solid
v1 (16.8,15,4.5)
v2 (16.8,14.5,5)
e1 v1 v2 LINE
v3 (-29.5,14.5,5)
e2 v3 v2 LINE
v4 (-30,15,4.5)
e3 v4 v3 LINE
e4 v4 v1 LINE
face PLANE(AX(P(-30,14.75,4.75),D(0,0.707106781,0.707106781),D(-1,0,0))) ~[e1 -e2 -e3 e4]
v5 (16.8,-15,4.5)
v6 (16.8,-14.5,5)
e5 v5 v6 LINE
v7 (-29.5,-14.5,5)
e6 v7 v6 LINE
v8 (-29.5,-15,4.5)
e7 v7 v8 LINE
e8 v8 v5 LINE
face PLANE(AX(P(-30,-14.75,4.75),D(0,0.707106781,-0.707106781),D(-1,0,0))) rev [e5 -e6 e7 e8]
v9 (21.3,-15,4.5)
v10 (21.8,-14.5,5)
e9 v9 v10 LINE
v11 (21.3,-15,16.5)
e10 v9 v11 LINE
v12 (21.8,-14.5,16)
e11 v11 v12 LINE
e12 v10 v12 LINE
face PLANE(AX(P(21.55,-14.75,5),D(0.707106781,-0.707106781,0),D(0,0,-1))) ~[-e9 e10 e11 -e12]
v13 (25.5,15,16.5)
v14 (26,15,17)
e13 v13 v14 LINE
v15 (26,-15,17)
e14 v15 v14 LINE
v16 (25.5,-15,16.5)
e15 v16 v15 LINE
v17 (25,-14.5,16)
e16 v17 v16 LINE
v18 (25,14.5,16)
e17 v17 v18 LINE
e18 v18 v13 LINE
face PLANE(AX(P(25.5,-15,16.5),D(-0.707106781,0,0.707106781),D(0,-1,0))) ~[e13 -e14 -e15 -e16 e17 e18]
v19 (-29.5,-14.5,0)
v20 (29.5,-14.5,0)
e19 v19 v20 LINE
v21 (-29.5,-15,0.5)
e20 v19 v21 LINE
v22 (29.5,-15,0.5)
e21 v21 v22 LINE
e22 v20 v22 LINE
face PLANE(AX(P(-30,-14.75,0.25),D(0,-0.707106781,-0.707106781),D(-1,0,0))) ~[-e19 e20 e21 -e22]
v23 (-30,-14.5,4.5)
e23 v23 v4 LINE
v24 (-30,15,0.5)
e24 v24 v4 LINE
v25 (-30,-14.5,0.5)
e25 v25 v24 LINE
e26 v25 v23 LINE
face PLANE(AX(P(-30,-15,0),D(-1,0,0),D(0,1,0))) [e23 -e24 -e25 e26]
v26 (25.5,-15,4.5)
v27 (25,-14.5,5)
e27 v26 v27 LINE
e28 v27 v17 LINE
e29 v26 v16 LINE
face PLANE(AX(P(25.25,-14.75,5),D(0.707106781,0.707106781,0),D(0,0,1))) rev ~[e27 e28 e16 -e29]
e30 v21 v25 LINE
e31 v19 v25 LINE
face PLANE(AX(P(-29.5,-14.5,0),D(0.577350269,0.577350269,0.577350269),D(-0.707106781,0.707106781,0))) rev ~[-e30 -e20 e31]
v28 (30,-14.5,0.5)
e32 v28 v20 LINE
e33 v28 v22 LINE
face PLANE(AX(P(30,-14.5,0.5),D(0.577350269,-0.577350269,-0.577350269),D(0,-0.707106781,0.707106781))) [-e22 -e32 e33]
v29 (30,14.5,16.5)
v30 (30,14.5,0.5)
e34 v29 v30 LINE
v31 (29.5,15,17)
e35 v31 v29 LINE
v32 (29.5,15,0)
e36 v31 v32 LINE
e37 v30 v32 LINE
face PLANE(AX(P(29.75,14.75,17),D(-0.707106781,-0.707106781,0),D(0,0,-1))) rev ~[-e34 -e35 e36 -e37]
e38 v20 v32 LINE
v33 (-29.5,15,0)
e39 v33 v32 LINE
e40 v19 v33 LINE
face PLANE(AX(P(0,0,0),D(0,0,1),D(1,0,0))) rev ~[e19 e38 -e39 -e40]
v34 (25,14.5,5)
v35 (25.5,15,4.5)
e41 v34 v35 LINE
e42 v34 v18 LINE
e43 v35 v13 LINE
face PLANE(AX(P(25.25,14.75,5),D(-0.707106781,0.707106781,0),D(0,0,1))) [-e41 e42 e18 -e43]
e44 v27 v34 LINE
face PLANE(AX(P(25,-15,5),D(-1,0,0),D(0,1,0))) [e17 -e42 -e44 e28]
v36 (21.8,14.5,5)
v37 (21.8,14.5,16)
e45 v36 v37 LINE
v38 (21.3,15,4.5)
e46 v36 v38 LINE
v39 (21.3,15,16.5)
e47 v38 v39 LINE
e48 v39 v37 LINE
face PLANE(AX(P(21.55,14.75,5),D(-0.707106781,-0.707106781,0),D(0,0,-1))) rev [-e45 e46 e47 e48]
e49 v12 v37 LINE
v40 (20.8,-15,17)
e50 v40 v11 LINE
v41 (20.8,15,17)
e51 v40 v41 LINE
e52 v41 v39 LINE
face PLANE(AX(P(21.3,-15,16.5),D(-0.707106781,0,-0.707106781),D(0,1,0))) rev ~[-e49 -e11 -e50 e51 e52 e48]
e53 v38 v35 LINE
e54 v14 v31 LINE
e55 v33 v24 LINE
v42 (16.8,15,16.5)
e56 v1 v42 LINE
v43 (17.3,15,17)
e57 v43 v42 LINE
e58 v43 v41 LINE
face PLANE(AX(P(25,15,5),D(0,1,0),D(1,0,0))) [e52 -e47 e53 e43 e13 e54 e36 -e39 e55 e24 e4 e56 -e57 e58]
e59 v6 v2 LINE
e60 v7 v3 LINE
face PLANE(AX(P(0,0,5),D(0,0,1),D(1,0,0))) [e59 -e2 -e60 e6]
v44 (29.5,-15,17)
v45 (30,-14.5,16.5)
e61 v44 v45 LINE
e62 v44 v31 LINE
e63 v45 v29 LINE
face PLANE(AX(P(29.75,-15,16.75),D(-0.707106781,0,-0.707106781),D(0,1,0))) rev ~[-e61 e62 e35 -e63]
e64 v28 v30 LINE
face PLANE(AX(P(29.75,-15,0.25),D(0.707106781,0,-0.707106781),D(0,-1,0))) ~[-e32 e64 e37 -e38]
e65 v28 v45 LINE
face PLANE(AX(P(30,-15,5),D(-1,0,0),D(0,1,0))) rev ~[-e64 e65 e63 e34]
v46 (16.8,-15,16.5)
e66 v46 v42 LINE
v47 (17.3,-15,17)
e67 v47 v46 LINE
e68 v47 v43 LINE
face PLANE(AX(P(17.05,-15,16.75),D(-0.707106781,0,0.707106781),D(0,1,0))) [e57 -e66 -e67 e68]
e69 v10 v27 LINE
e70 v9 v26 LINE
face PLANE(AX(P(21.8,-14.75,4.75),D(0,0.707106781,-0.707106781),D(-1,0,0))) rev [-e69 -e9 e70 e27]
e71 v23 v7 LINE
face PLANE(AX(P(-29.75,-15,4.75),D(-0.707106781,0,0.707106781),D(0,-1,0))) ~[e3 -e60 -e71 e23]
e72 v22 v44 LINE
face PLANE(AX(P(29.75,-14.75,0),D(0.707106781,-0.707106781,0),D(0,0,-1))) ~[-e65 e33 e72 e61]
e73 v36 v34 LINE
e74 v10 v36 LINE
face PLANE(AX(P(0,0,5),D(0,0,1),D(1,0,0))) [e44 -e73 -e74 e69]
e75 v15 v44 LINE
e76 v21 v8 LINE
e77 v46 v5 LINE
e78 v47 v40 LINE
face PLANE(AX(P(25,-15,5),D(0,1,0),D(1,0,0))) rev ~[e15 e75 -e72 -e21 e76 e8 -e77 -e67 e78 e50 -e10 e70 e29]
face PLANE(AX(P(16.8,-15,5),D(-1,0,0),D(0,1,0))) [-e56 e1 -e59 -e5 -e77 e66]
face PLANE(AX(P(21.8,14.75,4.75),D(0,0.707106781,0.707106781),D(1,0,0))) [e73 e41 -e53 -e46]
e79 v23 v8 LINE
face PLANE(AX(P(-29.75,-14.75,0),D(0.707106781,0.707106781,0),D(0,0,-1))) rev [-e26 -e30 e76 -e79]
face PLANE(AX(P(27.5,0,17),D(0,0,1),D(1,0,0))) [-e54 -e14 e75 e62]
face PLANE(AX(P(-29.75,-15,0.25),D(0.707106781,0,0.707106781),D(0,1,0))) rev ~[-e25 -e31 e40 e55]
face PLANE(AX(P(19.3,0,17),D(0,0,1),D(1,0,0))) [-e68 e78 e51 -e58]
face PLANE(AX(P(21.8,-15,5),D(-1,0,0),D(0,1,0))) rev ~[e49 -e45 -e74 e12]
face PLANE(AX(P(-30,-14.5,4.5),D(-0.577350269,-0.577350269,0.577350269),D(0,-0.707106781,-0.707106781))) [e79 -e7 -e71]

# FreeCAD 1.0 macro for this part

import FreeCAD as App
import Part
import Sketcher

V = App.Vector
Q = App.Units.Quantity


def edges_at(feature, points):
    """Names of the edges that pass closest to the given points."""
    edges = feature.Shape.Edges
    near = lambda p: min(range(len(edges)), key=lambda i: edges[i].distToShape(Part.Vertex(*p))[0])
    return sorted({f"Edge{near(p) + 1}" for p in points})

doc = App.newDocument("Part")
body = doc.addObject("PartDesign::Body", "Body")

# Sketch on XY plane
sketch1 = body.newObject("Sketcher::SketchObject", "Sketch")
sketch1.AttachmentSupport = (doc.getObject("XY_Plane"), [""])
sketch1.MapMode = "FlatFace"
sketch1.addGeometry(Part.LineSegment(V(-30, 15, 0), V(-30, -15, 0)), False)
sketch1.addGeometry(Part.LineSegment(V(-30, -15, 0), V(30, -15, 0)), False)
sketch1.addGeometry(Part.LineSegment(V(30, -15, 0), V(30, 15, 0)), False)
sketch1.addGeometry(Part.LineSegment(V(30, 15, 0), V(-30, 15, 0)), False)
sketch1.addConstraint(Sketcher.Constraint("Coincident", 0, 2, 1, 1))
sketch1.addConstraint(Sketcher.Constraint("Coincident", 1, 2, 2, 1))
sketch1.addConstraint(Sketcher.Constraint("Coincident", 2, 2, 3, 1))
sketch1.addConstraint(Sketcher.Constraint("Coincident", 3, 2, 0, 1))
sketch1.addConstraint(Sketcher.Constraint("Vertical", 0))
sketch1.addConstraint(Sketcher.Constraint("Horizontal", 1))
sketch1.addConstraint(Sketcher.Constraint("Vertical", 2))
sketch1.addConstraint(Sketcher.Constraint("Horizontal", 3))
sketch1.addConstraint(Sketcher.Constraint("Symmetric", 0, 2, 2, 2, -1, 1))
sketch1.addConstraint(Sketcher.Constraint("DistanceX", 1, 1, 1, 2, Q("60 mm")))
sketch1.addConstraint(Sketcher.Constraint("DistanceY", 0, 2, 0, 1, Q("30 mm")))
pad1 = body.newObject("PartDesign::Pad", "Pad")
pad1.Profile = sketch1
pad1.Length = 5

# Sketch on XY plane
sketch2 = body.newObject("Sketcher::SketchObject", "Sketch001")
sketch2.AttachmentSupport = (doc.getObject("XY_Plane"), [""])
sketch2.MapMode = "FlatFace"
sketch2.AttachmentOffset = App.Placement(V(0, 0, 5), App.Rotation())
sketch2.addGeometry(Part.LineSegment(V(16.8, 15, 0), V(16.8, -15, 0)), False)
sketch2.addGeometry(Part.LineSegment(V(16.8, -15, 0), V(21.8, -15, 0)), False)
sketch2.addGeometry(Part.LineSegment(V(21.8, -15, 0), V(21.8, 15, 0)), False)
sketch2.addGeometry(Part.LineSegment(V(21.8, 15, 0), V(16.8, 15, 0)), False)
sketch2.addGeometry(Part.LineSegment(V(25, 15, 0), V(25, -15, 0)), False)
sketch2.addGeometry(Part.LineSegment(V(25, -15, 0), V(30, -15, 0)), False)
sketch2.addGeometry(Part.LineSegment(V(30, -15, 0), V(30, 15, 0)), False)
sketch2.addGeometry(Part.LineSegment(V(30, 15, 0), V(25, 15, 0)), False)
sketch2.addConstraint(Sketcher.Constraint("Coincident", 0, 2, 1, 1))
sketch2.addConstraint(Sketcher.Constraint("Coincident", 1, 2, 2, 1))
sketch2.addConstraint(Sketcher.Constraint("Coincident", 2, 2, 3, 1))
sketch2.addConstraint(Sketcher.Constraint("Coincident", 3, 2, 0, 1))
sketch2.addConstraint(Sketcher.Constraint("Coincident", 4, 2, 5, 1))
sketch2.addConstraint(Sketcher.Constraint("Coincident", 5, 2, 6, 1))
sketch2.addConstraint(Sketcher.Constraint("Coincident", 6, 2, 7, 1))
sketch2.addConstraint(Sketcher.Constraint("Coincident", 7, 2, 4, 1))
sketch2.addConstraint(Sketcher.Constraint("Vertical", 0))
sketch2.addConstraint(Sketcher.Constraint("Horizontal", 1))
sketch2.addConstraint(Sketcher.Constraint("Vertical", 2))
sketch2.addConstraint(Sketcher.Constraint("Horizontal", 3))
sketch2.addConstraint(Sketcher.Constraint("Vertical", 4))
sketch2.addConstraint(Sketcher.Constraint("Horizontal", 5))
sketch2.addConstraint(Sketcher.Constraint("Vertical", 6))
sketch2.addConstraint(Sketcher.Constraint("Horizontal", 7))
sketch2.addConstraint(Sketcher.Constraint("Horizontal", 1, 2, 4, 2))
sketch2.addConstraint(Sketcher.Constraint("Horizontal", 3, 2, 6, 2))
sketch2.addConstraint(Sketcher.Constraint("Equal", 3, 5))
sketch2.addConstraint(Sketcher.Constraint("DistanceX", 1, 1, 1, 2, Q("5 mm")))
sketch2.addConstraint(Sketcher.Constraint("DistanceY", 0, 2, 0, 1, Q("30 mm")))
sketch2.addConstraint(Sketcher.Constraint("DistanceY", 0, 2, -1, 1, Q("15 mm")))
sketch2.addConstraint(Sketcher.Constraint("DistanceX", -1, 1, 4, 2, Q("25 mm")))
sketch2.addConstraint(Sketcher.Constraint("DistanceX", -1, 1, 0, 2, Q("16.8 mm")))
pad2 = body.newObject("PartDesign::Pad", "Pad001")
pad2.Profile = sketch2
pad2.Length = 12
doc.recompute()

chamfer = body.newObject("PartDesign::Chamfer", "Chamfer")
chamfer.Base = (pad2, edges_at(pad2, [(21.8, 0, 17), (25, 0, 17)]))
chamfer.Size = 1
doc.recompute()

chamfer2 = body.newObject("PartDesign::Chamfer", "Chamfer001")
chamfer2.Base = (chamfer, edges_at(chamfer, [
    (-6.6, -15, 5),
    (-30, 0, 5),
    (-6.6, 15, 5),
    (-30, -15, 2.5),
    (0, -15, 0),
    (23.4, -15, 5),
    (30, 0, 0),
    (16.8, 0, 17),
    (30, 0, 17),
    (-30, 0, 0),
    (30, -15, 8.5),
    (30, 15, 8.5),
    (23.4, 15, 5),
    (21.8, 15, 10.5),
    (25, 15, 10.5),
    (25, -15, 10.5),
    (21.8, -15, 10.5),
]))
chamfer2.Size = 0.5

doc.recompute()
